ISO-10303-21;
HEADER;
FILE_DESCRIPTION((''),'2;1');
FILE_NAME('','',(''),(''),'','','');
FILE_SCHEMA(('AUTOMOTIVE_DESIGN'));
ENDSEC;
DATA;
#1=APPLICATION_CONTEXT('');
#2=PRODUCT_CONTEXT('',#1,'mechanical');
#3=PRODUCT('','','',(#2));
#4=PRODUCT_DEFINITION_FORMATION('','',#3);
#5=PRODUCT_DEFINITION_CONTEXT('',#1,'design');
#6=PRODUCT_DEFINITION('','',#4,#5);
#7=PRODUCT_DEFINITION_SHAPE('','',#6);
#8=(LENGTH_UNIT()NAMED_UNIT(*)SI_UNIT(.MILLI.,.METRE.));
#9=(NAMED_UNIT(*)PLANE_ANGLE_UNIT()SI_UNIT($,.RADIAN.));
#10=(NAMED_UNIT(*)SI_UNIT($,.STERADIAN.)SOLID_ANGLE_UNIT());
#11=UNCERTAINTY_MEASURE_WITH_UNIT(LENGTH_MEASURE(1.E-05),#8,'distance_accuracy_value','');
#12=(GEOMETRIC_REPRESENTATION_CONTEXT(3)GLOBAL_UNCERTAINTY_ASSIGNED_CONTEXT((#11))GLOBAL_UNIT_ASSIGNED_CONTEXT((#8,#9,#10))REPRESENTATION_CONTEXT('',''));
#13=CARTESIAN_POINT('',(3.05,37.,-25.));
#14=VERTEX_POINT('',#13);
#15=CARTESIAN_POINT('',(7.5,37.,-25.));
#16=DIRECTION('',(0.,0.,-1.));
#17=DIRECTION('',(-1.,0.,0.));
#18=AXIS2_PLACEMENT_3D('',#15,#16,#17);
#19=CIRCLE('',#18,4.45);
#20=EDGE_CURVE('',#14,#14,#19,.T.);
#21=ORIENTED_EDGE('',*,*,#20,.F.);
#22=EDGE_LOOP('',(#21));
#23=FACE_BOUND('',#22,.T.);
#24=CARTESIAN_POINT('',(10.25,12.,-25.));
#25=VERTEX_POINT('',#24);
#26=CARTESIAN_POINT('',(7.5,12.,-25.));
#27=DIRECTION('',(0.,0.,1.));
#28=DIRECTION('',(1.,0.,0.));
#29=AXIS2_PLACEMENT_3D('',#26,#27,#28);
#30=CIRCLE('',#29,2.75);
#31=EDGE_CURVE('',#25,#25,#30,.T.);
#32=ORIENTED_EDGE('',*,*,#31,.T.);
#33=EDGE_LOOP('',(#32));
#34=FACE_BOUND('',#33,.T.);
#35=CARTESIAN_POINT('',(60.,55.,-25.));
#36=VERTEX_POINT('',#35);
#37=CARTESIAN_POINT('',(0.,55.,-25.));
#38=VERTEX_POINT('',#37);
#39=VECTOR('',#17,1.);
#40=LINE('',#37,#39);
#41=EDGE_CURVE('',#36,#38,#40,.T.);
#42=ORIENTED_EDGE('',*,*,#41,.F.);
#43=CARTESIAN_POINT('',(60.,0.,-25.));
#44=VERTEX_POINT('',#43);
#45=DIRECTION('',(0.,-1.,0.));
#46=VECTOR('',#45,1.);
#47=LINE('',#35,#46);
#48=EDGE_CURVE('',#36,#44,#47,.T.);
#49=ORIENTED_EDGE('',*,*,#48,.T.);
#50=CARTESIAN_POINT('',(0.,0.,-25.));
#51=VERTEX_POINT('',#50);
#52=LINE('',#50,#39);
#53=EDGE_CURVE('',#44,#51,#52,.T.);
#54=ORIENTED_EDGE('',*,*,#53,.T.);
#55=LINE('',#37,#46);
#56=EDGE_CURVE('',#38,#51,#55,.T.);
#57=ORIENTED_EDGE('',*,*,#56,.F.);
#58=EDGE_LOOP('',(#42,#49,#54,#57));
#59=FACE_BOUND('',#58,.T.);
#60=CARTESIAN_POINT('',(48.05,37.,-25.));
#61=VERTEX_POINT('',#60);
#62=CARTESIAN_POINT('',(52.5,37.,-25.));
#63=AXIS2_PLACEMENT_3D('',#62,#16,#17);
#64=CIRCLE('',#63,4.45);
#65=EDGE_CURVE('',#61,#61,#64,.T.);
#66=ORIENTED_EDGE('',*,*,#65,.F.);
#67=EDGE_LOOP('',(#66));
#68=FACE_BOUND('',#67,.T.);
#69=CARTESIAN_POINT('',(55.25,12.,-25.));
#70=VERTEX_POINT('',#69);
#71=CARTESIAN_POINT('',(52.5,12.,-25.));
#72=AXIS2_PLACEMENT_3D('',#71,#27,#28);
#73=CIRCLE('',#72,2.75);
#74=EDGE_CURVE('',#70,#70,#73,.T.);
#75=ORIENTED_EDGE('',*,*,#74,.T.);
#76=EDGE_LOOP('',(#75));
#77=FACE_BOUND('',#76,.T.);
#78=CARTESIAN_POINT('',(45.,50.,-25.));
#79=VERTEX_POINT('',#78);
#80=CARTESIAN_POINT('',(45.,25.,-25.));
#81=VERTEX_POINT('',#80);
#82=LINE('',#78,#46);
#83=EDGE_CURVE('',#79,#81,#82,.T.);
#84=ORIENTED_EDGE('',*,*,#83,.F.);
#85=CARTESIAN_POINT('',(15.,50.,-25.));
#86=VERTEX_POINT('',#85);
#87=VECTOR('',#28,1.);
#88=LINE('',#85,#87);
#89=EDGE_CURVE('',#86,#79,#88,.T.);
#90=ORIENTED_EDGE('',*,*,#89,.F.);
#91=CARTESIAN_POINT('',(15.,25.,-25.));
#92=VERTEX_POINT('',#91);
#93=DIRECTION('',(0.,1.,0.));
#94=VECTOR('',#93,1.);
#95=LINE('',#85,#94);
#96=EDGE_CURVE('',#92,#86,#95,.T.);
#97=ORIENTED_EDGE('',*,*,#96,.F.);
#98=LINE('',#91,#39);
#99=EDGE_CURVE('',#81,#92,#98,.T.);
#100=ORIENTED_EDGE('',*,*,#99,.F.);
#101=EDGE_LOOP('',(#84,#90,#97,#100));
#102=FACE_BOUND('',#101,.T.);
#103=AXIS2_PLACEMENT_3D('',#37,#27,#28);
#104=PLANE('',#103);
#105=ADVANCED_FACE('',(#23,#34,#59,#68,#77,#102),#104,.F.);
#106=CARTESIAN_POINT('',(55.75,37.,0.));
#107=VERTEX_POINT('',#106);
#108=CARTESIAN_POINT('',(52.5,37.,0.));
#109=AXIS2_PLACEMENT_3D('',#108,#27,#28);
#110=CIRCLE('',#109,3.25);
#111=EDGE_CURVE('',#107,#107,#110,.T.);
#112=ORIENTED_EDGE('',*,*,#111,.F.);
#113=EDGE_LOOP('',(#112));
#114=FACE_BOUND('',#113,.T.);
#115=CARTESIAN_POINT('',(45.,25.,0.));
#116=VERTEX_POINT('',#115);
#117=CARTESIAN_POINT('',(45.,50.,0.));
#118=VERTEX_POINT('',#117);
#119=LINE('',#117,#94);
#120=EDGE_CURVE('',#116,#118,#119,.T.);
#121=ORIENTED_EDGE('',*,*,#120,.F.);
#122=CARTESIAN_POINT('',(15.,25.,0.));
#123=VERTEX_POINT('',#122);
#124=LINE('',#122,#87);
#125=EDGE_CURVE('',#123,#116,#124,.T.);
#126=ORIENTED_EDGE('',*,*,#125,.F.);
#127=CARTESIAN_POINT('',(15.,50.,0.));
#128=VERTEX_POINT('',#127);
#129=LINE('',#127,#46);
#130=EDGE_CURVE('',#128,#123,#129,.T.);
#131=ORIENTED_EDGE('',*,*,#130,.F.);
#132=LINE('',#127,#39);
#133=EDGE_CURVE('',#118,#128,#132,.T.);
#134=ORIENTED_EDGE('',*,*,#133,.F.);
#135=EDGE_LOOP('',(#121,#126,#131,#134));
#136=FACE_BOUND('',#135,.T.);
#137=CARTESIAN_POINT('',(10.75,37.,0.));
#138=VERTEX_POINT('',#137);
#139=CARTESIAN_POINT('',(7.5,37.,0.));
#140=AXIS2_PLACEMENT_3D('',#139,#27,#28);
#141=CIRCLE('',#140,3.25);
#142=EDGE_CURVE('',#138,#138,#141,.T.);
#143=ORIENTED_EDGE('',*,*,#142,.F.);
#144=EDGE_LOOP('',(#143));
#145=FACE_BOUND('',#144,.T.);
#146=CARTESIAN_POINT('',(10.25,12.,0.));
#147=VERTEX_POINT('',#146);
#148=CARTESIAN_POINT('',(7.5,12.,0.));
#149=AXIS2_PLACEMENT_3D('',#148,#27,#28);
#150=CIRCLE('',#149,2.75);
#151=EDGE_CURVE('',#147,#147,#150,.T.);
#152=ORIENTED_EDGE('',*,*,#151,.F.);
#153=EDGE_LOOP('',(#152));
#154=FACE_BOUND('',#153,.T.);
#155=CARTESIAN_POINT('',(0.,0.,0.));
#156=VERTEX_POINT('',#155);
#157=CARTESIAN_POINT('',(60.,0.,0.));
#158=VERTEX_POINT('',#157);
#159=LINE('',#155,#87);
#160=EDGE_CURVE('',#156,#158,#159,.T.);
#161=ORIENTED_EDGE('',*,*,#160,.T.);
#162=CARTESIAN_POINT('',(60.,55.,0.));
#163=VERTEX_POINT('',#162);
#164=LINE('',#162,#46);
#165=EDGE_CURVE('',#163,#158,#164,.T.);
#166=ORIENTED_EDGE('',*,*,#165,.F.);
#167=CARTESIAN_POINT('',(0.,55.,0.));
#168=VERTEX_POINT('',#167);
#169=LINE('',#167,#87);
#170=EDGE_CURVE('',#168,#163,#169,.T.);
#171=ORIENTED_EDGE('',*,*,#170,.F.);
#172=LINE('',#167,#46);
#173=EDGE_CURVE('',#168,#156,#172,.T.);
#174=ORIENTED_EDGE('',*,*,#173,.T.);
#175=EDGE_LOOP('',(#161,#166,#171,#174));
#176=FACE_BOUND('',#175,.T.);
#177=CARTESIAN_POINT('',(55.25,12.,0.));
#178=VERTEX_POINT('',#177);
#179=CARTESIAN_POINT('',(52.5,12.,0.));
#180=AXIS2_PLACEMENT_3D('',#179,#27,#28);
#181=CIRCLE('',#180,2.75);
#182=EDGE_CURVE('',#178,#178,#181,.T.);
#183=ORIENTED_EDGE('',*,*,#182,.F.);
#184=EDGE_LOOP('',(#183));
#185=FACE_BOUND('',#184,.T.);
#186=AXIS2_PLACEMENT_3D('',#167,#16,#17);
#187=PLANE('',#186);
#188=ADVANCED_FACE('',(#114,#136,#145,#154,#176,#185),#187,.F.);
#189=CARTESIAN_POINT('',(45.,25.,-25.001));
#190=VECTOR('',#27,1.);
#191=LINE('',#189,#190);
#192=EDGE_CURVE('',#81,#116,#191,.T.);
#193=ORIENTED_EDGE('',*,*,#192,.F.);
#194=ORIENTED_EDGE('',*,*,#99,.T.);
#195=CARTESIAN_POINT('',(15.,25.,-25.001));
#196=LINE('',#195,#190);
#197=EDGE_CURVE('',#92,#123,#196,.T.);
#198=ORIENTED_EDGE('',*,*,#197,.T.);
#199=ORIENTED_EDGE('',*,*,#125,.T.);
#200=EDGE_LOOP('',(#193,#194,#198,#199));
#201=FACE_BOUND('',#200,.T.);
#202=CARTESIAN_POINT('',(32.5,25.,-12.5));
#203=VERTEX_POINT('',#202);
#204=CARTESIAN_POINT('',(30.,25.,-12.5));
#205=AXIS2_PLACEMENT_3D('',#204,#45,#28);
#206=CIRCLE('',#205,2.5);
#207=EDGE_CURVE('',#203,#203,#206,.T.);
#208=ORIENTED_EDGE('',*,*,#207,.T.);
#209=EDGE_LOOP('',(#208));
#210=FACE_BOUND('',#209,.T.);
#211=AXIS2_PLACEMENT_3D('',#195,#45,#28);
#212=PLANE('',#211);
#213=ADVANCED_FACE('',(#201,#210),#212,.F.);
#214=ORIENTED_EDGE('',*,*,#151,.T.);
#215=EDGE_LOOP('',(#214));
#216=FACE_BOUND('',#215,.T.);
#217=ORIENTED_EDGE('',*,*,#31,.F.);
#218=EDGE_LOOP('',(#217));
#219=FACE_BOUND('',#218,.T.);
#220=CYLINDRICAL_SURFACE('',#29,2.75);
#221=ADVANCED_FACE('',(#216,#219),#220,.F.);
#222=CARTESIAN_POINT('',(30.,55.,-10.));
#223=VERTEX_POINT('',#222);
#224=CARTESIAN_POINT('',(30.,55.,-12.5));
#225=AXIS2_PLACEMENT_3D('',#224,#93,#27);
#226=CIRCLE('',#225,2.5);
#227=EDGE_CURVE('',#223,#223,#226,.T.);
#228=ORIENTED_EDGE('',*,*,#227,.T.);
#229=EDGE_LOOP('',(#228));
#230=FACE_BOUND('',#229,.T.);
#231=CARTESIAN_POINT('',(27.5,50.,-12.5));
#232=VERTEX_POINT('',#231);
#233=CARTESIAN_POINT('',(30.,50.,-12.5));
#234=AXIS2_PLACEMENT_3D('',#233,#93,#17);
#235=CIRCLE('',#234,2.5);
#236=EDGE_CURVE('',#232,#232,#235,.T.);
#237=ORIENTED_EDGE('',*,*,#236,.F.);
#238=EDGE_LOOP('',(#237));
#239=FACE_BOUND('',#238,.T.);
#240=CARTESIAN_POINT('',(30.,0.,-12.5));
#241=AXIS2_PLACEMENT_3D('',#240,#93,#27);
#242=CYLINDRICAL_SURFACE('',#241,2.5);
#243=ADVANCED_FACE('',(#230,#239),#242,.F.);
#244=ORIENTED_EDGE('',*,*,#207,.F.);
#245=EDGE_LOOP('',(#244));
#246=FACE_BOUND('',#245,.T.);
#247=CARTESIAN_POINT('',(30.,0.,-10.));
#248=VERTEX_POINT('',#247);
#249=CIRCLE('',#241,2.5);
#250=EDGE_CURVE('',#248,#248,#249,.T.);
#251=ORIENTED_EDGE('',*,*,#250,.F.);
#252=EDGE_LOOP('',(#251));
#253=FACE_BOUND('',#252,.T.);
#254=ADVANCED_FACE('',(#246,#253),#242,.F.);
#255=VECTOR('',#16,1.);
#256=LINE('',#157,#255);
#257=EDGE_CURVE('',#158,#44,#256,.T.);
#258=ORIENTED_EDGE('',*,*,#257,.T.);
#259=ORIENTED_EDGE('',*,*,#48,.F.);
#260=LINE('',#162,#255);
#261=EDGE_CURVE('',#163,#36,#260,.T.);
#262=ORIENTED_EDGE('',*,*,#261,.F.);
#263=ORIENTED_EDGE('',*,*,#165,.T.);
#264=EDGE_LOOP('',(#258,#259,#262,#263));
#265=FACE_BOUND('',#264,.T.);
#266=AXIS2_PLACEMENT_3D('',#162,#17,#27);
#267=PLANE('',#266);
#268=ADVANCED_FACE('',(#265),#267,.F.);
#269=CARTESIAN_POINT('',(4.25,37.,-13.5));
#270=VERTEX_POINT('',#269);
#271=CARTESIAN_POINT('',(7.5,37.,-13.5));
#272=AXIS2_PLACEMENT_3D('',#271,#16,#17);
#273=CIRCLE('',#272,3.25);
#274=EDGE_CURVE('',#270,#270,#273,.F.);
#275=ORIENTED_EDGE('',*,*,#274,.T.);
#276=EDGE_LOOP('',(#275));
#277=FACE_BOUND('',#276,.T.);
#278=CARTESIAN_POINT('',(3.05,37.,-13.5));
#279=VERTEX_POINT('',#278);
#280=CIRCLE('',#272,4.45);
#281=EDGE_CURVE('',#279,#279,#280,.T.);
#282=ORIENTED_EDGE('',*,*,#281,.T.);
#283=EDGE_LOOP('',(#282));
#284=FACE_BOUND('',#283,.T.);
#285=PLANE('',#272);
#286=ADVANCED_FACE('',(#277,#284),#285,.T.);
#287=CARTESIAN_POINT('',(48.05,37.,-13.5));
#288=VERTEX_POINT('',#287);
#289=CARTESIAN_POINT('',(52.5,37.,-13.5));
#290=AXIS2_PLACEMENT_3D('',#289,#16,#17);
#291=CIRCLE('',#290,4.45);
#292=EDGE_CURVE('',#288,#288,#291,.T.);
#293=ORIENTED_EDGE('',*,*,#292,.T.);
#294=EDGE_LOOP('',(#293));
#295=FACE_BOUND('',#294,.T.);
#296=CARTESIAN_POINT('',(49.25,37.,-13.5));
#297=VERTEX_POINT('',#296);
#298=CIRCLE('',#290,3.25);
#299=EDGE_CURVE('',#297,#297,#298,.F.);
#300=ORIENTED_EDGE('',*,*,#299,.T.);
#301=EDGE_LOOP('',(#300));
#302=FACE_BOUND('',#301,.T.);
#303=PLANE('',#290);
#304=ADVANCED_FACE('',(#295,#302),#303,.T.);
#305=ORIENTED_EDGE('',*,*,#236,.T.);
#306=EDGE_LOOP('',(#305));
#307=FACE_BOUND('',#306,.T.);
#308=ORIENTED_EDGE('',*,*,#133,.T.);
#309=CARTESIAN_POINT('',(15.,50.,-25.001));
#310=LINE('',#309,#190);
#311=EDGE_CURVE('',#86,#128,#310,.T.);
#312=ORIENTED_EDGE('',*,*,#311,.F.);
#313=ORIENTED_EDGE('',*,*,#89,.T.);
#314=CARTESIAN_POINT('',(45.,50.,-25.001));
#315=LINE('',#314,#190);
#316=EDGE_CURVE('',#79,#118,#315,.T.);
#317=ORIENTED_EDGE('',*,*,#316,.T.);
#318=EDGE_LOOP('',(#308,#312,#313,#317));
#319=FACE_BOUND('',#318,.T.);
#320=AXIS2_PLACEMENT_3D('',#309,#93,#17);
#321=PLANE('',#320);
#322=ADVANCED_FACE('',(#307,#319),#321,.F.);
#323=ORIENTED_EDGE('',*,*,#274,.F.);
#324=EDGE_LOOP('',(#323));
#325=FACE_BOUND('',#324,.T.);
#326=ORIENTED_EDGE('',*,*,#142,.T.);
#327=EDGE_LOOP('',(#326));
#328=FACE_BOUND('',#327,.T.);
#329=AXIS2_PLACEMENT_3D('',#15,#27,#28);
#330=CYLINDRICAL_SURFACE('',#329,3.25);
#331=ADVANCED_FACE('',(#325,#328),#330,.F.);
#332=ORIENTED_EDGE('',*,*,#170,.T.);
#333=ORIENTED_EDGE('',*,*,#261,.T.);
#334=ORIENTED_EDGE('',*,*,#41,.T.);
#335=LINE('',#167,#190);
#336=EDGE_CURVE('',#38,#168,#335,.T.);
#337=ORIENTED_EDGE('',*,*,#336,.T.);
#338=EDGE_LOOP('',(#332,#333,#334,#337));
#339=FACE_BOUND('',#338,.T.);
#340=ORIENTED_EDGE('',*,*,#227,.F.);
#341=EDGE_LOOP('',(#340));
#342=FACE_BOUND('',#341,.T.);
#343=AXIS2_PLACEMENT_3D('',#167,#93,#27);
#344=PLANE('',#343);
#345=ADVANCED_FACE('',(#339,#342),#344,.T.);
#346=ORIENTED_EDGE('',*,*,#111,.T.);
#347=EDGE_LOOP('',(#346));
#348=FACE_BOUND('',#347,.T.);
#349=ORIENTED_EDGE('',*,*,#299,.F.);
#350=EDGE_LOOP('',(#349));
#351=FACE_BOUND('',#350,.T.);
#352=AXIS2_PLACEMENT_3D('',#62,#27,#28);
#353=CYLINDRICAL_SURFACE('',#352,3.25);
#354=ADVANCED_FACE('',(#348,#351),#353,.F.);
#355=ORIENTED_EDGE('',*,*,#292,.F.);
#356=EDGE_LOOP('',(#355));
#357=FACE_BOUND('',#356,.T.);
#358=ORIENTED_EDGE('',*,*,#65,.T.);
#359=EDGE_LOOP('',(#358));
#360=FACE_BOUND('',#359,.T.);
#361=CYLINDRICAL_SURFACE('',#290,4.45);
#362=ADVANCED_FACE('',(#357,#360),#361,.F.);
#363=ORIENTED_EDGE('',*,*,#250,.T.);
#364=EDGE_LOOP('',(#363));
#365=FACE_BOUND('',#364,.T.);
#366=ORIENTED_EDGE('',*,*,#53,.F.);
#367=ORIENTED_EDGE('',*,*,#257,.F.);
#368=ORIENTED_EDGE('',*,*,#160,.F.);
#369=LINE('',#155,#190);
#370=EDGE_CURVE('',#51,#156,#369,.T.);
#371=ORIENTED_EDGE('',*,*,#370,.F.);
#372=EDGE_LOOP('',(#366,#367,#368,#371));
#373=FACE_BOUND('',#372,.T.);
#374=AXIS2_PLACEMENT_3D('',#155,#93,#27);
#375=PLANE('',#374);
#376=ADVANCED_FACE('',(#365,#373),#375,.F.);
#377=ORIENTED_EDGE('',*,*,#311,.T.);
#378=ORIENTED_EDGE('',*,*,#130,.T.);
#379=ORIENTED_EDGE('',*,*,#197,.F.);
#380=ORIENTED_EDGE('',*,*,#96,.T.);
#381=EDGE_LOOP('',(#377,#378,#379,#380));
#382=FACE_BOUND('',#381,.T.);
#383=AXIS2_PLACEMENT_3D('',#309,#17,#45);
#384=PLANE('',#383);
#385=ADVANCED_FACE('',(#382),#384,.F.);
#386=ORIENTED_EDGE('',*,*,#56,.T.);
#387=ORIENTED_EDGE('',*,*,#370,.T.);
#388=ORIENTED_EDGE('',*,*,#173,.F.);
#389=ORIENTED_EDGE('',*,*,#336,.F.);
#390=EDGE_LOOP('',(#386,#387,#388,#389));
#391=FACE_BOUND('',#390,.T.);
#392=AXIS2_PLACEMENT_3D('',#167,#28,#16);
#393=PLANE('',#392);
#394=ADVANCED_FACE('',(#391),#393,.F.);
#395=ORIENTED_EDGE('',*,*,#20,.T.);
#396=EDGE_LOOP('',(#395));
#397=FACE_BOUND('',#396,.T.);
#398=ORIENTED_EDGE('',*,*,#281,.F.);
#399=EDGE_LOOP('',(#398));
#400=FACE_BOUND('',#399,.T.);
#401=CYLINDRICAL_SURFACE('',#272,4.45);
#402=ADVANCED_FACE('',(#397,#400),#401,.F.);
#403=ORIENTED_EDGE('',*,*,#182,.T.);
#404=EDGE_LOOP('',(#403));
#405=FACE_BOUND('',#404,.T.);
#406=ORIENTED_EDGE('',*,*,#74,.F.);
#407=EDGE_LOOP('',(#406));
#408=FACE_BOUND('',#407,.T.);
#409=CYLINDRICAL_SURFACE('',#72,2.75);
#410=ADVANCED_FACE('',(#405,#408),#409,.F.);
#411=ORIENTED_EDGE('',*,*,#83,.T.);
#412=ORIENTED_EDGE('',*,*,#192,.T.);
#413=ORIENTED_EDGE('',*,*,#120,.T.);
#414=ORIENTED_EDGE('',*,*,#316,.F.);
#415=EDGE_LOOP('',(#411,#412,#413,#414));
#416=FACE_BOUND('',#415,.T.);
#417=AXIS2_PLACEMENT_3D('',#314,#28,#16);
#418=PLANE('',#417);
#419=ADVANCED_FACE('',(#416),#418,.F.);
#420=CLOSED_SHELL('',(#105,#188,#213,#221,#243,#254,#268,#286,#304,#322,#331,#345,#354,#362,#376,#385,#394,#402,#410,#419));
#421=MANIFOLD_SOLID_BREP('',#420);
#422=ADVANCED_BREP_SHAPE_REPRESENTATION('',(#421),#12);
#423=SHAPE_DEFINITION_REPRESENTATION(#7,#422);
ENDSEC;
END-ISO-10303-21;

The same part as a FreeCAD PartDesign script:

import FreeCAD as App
import Part
import Sketcher
Q = App.Units.Quantity

doc = App.newDocument("Part")
body = doc.addObject("PartDesign::Body", "Body")

sketch1 = body.newObject("Sketcher::SketchObject", "Sketch")
sketch1.AttachmentSupport = (doc.getObject("XZ_Plane"), [""])
sketch1.MapMode = "FlatFace"
sketch1.addGeometry(Part.LineSegment(App.Vector(0, -25, 0), App.Vector(0, 0, 0)), False)
sketch1.addGeometry(Part.LineSegment(App.Vector(0, 0, 0), App.Vector(60, 0, 0)), False)
sketch1.addGeometry(Part.LineSegment(App.Vector(60, 0, 0), App.Vector(60, -25, 0)), False)
sketch1.addGeometry(Part.LineSegment(App.Vector(60, -25, 0), App.Vector(0, -25, 0)), False)
sketch1.addConstraint(Sketcher.Constraint("Coincident", 0, 2, 1, 1))
sketch1.addConstraint(Sketcher.Constraint("Coincident", 1, 2, 2, 1))
sketch1.addConstraint(Sketcher.Constraint("Coincident", 2, 2, 3, 1))
sketch1.addConstraint(Sketcher.Constraint("Coincident", 3, 2, 0, 1))
sketch1.addConstraint(Sketcher.Constraint("Vertical", 0))
sketch1.addConstraint(Sketcher.Constraint("Horizontal", 1))
sketch1.addConstraint(Sketcher.Constraint("Vertical", 2))
sketch1.addConstraint(Sketcher.Constraint("Horizontal", 3))
sketch1.addConstraint(Sketcher.Constraint("Coincident", 0, 2, -1, 1))
sketch1.addConstraint(Sketcher.Constraint("DistanceX", 1, 1, 1, 2, Q("60 mm")))
sketch1.addConstraint(Sketcher.Constraint("DistanceY", 0, 1, 0, 2, Q("25 mm")))
pad1 = body.newObject("PartDesign::Pad", "Pad")
pad1.Profile = sketch1
pad1.Length = 55
pad1.Reversed = True

sketch2 = body.newObject("Sketcher::SketchObject", "Sketch001")
sketch2.AttachmentSupport = (doc.getObject("XY_Plane"), [""])
sketch2.MapMode = "FlatFace"
sketch2.addGeometry(Part.LineSegment(App.Vector(15, 50, 0), App.Vector(15, 25, 0)), False)
sketch2.addGeometry(Part.LineSegment(App.Vector(15, 25, 0), App.Vector(45, 25, 0)), False)
sketch2.addGeometry(Part.LineSegment(App.Vector(45, 25, 0), App.Vector(45, 50, 0)), False)
sketch2.addGeometry(Part.LineSegment(App.Vector(45, 50, 0), App.Vector(15, 50, 0)), False)
sketch2.addConstraint(Sketcher.Constraint("Coincident", 0, 2, 1, 1))
sketch2.addConstraint(Sketcher.Constraint("Coincident", 1, 2, 2, 1))
sketch2.addConstraint(Sketcher.Constraint("Coincident", 2, 2, 3, 1))
sketch2.addConstraint(Sketcher.Constraint("Coincident", 3, 2, 0, 1))
sketch2.addConstraint(Sketcher.Constraint("Vertical", 0))
sketch2.addConstraint(Sketcher.Constraint("Horizontal", 1))
sketch2.addConstraint(Sketcher.Constraint("Vertical", 2))
sketch2.addConstraint(Sketcher.Constraint("Horizontal", 3))
sketch2.addConstraint(Sketcher.Constraint("DistanceX", 1, 1, 1, 2, Q("30 mm")))
sketch2.addConstraint(Sketcher.Constraint("DistanceY", 0, 2, 0, 1, Q("25 mm")))
sketch2.addConstraint(Sketcher.Constraint("DistanceX", -1, 1, 0, 2, Q("15 mm")))
sketch2.addConstraint(Sketcher.Constraint("DistanceY", -1, 1, 0, 2, Q("25 mm")))
pocket1 = body.newObject("PartDesign::Pocket", "Pocket")
pocket1.Profile = sketch2
pocket1.Type = "UpToFirst"

sketch3 = body.newObject("Sketcher::SketchObject", "Sketch002")
sketch3.AttachmentSupport = (doc.getObject("XZ_Plane"), [""])
sketch3.MapMode = "FlatFace"
sketch3.AttachmentOffset = App.Placement(App.Vector(0, 0, -55), App.Rotation())
sketch3.addGeometry(Part.Circle(App.Vector(30, -12.5, 0), App.Vector(0, 0, 1), 2.5), False)
sketch3.addConstraint(Sketcher.Constraint("Diameter", 0, Q("5 mm")))
sketch3.addConstraint(Sketcher.Constraint("DistanceX", -1, 1, 0, 3, Q("30 mm")))
sketch3.addConstraint(Sketcher.Constraint("DistanceY", 0, 3, -1, 1, Q("12.5 mm")))
pocket2 = body.newObject("PartDesign::Pocket", "Pocket001")
pocket2.Profile = sketch3
pocket2.Type = "ThroughAll"
pocket2.Reversed = True

sketch4 = body.newObject("Sketcher::SketchObject", "Sketch003")
sketch4.AttachmentSupport = (doc.getObject("XY_Plane"), [""])
sketch4.MapMode = "FlatFace"
sketch4.addGeometry(Part.Circle(App.Vector(7.5, 37, 0), App.Vector(0, 0, 1), 3.2), False)
sketch4.addGeometry(Part.Circle(App.Vector(7.5, 12, 0), App.Vector(0, 0, 1), 2.8), False)
sketch4.addGeometry(Part.Circle(App.Vector(52.5, 12, 0), App.Vector(0, 0, 1), 2.8), False)
sketch4.addGeometry(Part.Circle(App.Vector(52.5, 37, 0), App.Vector(0, 0, 1), 3.2), False)
sketch4.addConstraint(Sketcher.Constraint("Equal", 1, 2))
sketch4.addConstraint(Sketcher.Constraint("Equal", 0, 3))
sketch4.addConstraint(Sketcher.Constraint("Horizontal", 1, 3, 2, 3))
sketch4.addConstraint(Sketcher.Constraint("Horizontal", 0, 3, 3, 3))
sketch4.addConstraint(Sketcher.Constraint("Vertical", 0, 3, 1, 3))
sketch4.addConstraint(Sketcher.Constraint("Vertical", 2, 3, 3, 3))
sketch4.addConstraint(Sketcher.Constraint("Diameter", 0, Q("6.5 mm")))
sketch4.addConstraint(Sketcher.Constraint("Diameter", 1, Q("5.5 mm")))
sketch4.addConstraint(Sketcher.Constraint("DistanceY", -1, 1, 0, 3, Q("37 mm")))
sketch4.addConstraint(Sketcher.Constraint("DistanceY", -1, 1, 1, 3, Q("12 mm")))
sketch4.addConstraint(Sketcher.Constraint("DistanceX", 1, 3, 2, 3, Q("45 mm")))
sketch4.addConstraint(Sketcher.Constraint("DistanceX", -1, 1, 0, 3, Q("7.5 mm")))
pocket3 = body.newObject("PartDesign::Pocket", "Pocket002")
pocket3.Profile = sketch4
pocket3.Type = "ThroughAll"

sketch5 = body.newObject("Sketcher::SketchObject", "Sketch004")
sketch5.AttachmentSupport = (doc.getObject("XY_Plane"), [""])
sketch5.MapMode = "FlatFace"
sketch5.AttachmentOffset = App.Placement(App.Vector(0, 0, -25), App.Rotation())
sketch5.addGeometry(Part.Circle(App.Vector(52.5, 37, 0), App.Vector(0, 0, 1), 4.5), False)
sketch5.addGeometry(Part.Circle(App.Vector(7.5, 37, 0), App.Vector(0, 0, 1), 4.5), False)
sketch5.addConstraint(Sketcher.Constraint("Equal", 0, 1))
sketch5.addConstraint(Sketcher.Constraint("Horizontal", 0, 3, 1, 3))
sketch5.addConstraint(Sketcher.Constraint("Diameter", 0, Q("8.9 mm")))
sketch5.addConstraint(Sketcher.Constraint("DistanceY", -1, 1, 0, 3, Q("37 mm")))
sketch5.addConstraint(Sketcher.Constraint("DistanceX", 1, 3, 0, 3, Q("45 mm")))
sketch5.addConstraint(Sketcher.Constraint("DistanceX", -1, 1, 0, 3, Q("52.5 mm")))
pocket4 = body.newObject("PartDesign::Pocket", "Pocket003")
pocket4.Profile = sketch5
pocket4.Length = 11.5
pocket4.Reversed = True

doc.recompute()
